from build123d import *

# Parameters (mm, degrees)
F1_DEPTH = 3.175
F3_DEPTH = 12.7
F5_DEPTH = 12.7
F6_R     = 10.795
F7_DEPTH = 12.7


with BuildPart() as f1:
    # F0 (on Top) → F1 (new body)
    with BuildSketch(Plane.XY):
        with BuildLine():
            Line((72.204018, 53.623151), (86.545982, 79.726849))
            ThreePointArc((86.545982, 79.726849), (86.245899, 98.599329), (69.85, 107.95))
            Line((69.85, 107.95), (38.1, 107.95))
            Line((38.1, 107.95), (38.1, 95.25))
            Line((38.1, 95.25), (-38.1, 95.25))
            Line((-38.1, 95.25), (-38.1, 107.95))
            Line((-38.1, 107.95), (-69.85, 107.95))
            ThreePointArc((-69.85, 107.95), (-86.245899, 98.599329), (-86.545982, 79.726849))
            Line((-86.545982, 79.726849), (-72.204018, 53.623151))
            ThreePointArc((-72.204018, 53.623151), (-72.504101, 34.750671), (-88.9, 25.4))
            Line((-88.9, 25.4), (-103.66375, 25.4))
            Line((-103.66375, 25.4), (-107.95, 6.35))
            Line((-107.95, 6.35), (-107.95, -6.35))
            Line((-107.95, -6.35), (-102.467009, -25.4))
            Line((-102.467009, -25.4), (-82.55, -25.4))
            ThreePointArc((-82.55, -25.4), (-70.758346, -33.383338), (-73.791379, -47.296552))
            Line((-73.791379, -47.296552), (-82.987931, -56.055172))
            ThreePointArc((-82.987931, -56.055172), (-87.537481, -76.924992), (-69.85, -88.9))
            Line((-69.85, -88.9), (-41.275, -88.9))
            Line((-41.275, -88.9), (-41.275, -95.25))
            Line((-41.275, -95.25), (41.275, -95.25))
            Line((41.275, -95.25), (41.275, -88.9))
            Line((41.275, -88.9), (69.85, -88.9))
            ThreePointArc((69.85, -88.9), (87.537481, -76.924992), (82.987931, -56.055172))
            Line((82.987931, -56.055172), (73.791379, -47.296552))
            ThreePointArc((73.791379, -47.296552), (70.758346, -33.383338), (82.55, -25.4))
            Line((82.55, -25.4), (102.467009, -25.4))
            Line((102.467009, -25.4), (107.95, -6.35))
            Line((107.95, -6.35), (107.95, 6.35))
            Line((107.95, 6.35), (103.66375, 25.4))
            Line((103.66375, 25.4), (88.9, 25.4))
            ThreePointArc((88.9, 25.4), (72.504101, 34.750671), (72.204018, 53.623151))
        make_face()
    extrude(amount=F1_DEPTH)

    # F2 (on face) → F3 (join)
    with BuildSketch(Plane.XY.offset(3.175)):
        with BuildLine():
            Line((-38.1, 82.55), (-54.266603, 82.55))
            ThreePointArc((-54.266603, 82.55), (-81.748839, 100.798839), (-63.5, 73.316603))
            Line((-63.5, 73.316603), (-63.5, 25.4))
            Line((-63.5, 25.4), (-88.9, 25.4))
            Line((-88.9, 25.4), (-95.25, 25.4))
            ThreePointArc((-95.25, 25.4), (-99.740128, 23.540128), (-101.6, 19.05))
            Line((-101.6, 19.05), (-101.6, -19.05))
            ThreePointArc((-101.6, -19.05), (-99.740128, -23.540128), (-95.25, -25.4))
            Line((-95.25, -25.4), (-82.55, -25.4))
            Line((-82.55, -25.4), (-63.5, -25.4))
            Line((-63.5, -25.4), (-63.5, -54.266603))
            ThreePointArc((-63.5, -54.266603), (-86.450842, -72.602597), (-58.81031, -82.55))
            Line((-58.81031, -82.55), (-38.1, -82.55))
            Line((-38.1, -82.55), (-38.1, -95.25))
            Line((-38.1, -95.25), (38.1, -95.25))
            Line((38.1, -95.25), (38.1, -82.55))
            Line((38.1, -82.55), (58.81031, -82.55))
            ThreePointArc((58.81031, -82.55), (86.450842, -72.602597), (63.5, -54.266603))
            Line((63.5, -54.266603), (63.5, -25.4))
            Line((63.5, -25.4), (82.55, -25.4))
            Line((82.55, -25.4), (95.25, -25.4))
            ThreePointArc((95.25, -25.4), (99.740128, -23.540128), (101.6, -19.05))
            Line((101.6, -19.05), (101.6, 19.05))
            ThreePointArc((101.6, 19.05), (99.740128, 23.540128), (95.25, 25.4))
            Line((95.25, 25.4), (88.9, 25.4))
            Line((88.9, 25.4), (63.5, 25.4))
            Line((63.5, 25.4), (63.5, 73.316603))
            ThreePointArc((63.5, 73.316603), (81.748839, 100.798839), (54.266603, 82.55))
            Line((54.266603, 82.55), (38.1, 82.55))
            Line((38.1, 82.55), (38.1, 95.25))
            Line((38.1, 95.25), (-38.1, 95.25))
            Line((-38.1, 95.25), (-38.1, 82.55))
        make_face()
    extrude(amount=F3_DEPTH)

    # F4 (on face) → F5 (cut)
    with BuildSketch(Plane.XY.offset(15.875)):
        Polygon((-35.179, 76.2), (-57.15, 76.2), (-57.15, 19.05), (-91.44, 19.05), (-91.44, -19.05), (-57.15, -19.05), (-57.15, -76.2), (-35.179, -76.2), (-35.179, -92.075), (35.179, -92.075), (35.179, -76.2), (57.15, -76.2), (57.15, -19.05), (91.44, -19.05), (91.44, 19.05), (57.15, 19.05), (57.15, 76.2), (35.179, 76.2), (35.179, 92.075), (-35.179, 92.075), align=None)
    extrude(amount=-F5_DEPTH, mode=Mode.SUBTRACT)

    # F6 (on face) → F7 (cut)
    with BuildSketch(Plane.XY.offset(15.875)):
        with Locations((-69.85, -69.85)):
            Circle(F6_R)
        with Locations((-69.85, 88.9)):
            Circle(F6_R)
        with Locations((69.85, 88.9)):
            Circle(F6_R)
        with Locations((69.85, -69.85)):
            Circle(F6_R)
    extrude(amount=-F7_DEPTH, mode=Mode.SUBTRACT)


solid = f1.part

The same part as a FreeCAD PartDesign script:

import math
import FreeCAD as App
import Part
import Sketcher
Q = App.Units.Quantity


def add_polygon(sketch, points):
    """Adds a closed chain of lines whose ends are joined by coincident constraints."""
    first, n = sketch.GeometryCount, len(points)
    for a, b in zip(points, points[1:] + points[:1]):
        sketch.addGeometry(Part.LineSegment(App.Vector(*a, 0), App.Vector(*b, 0)), False)
    for i in range(n):
        sketch.addConstraint(Sketcher.Constraint("Coincident", first + i, 2, first + (i + 1) % n, 1))

doc = App.newDocument("Part")
body = doc.addObject("PartDesign::Body", "Body")

sketch1 = body.newObject("Sketcher::SketchObject", "Sketch")
sketch1.AttachmentSupport = (doc.getObject("XY_Plane"), [""])
sketch1.MapMode = "FlatFace"
sketch1.addGeometry([
    Part.LineSegment(App.Vector(72, 54, 0), App.Vector(87, 80, 0)),
    Part.ArcOfCircle(Part.Circle(App.Vector(70, 89, 0), App.Vector(0, 0, 1), 19), math.radians(-29), math.radians(90)),
    Part.LineSegment(App.Vector(70, 108, 0), App.Vector(38, 108, 0)),
    Part.LineSegment(App.Vector(38, 108, 0), App.Vector(38, 95, 0)),
    Part.LineSegment(App.Vector(38, 95, 0), App.Vector(-38, 95, 0)),
    Part.LineSegment(App.Vector(-38, 95, 0), App.Vector(-38, 108, 0)),
    Part.LineSegment(App.Vector(-38, 108, 0), App.Vector(-70, 108, 0)),
    Part.ArcOfCircle(Part.Circle(App.Vector(-70, 89, 0), App.Vector(0, 0, 1), 19), math.radians(90), math.radians(209)),
    Part.LineSegment(App.Vector(-87, 80, 0), App.Vector(-72, 54, 0)),
    Part.ArcOfCircle(Part.Circle(App.Vector(-89, 44, 0), App.Vector(0, 0, 1), 19), math.radians(-90), math.radians(29)),
    Part.LineSegment(App.Vector(-89, 25, 0), App.Vector(-104, 25, 0)),
    Part.LineSegment(App.Vector(-104, 25, 0), App.Vector(-108, 6, 0)),
    Part.LineSegment(App.Vector(-108, 6, 0), App.Vector(-108, -6, 0)),
    Part.LineSegment(App.Vector(-108, -6, 0), App.Vector(-102, -25, 0)),
    Part.LineSegment(App.Vector(-102, -25, 0), App.Vector(-83, -25, 0)),
    Part.ArcOfCircle(Part.Circle(App.Vector(-83, -38, 0), App.Vector(0, 0, 1), 13), math.radians(-46), math.radians(90)),
    Part.LineSegment(App.Vector(-74, -47, 0), App.Vector(-83, -56, 0)),
    Part.ArcOfCircle(Part.Circle(App.Vector(-70, -70, 0), App.Vector(0, 0, 1), 19), math.radians(134), math.radians(270)),
    Part.LineSegment(App.Vector(-70, -89, 0), App.Vector(-41, -89, 0)),
    Part.LineSegment(App.Vector(-41, -89, 0), App.Vector(-41, -95, 0)),
    Part.LineSegment(App.Vector(-41, -95, 0), App.Vector(41, -95, 0)),
    Part.LineSegment(App.Vector(41, -95, 0), App.Vector(41, -89, 0)),
    Part.LineSegment(App.Vector(41, -89, 0), App.Vector(70, -89, 0)),
    Part.ArcOfCircle(Part.Circle(App.Vector(70, -70, 0), App.Vector(0, 0, 1), 19), math.radians(-90), math.radians(46)),
    Part.LineSegment(App.Vector(83, -56, 0), App.Vector(74, -47, 0)),
    Part.ArcOfCircle(Part.Circle(App.Vector(83, -38, 0), App.Vector(0, 0, 1), 13), math.radians(90), math.radians(226)),
    Part.LineSegment(App.Vector(83, -25, 0), App.Vector(102, -25, 0)),
    Part.LineSegment(App.Vector(102, -25, 0), App.Vector(108, -6, 0)),
    Part.LineSegment(App.Vector(108, -6, 0), App.Vector(108, 6, 0)),
    Part.LineSegment(App.Vector(108, 6, 0), App.Vector(104, 25, 0)),
    Part.LineSegment(App.Vector(104, 25, 0), App.Vector(89, 25, 0)),
    Part.ArcOfCircle(Part.Circle(App.Vector(89, 44, 0), App.Vector(0, 0, 1), 19), math.radians(151), math.radians(270)),
], False)
sketch1.addConstraint([
    Sketcher.Constraint("Tangent", 0, 2, 1, 1),
    Sketcher.Constraint("Tangent", 1, 2, 2, 1),
    Sketcher.Constraint("Coincident", 2, 2, 3, 1),
    Sketcher.Constraint("Coincident", 3, 2, 4, 1),
    Sketcher.Constraint("Coincident", 4, 2, 5, 1),
    Sketcher.Constraint("Coincident", 5, 2, 6, 1),
    Sketcher.Constraint("Tangent", 6, 2, 7, 1),
    Sketcher.Constraint("Tangent", 7, 2, 8, 1),
    Sketcher.Constraint("Tangent", 8, 2, 9, 2),
    Sketcher.Constraint("Tangent", 9, 1, 10, 1),
    Sketcher.Constraint("Coincident", 10, 2, 11, 1),
    Sketcher.Constraint("Coincident", 11, 2, 12, 1),
    Sketcher.Constraint("Coincident", 12, 2, 13, 1),
    Sketcher.Constraint("Coincident", 13, 2, 14, 1),
    Sketcher.Constraint("Tangent", 14, 2, 15, 2),
    Sketcher.Constraint("Tangent", 15, 1, 16, 1),
    Sketcher.Constraint("Tangent", 16, 2, 17, 1),
    Sketcher.Constraint("Tangent", 17, 2, 18, 1),
    Sketcher.Constraint("Coincident", 18, 2, 19, 1),
    Sketcher.Constraint("Coincident", 19, 2, 20, 1),
    Sketcher.Constraint("Coincident", 20, 2, 21, 1),
    Sketcher.Constraint("Coincident", 21, 2, 22, 1),
    Sketcher.Constraint("Tangent", 22, 2, 23, 1),
    Sketcher.Constraint("Tangent", 23, 2, 24, 1),
    Sketcher.Constraint("Tangent", 24, 2, 25, 2),
    Sketcher.Constraint("Tangent", 25, 1, 26, 1),
    Sketcher.Constraint("Coincident", 26, 2, 27, 1),
    Sketcher.Constraint("Coincident", 27, 2, 28, 1),
    Sketcher.Constraint("Coincident", 28, 2, 29, 1),
    Sketcher.Constraint("Coincident", 29, 2, 30, 1),
    Sketcher.Constraint("Tangent", 30, 2, 31, 2),
    Sketcher.Constraint("Tangent", 31, 1, 0, 1),
    Sketcher.Constraint("Horizontal", 2),
    Sketcher.Constraint("Vertical", 3),
    Sketcher.Constraint("Horizontal", 4),
    Sketcher.Constraint("Vertical", 5),
    Sketcher.Constraint("Horizontal", 6),
    Sketcher.Constraint("Horizontal", 10),
    Sketcher.Constraint("Vertical", 12),
    Sketcher.Constraint("Horizontal", 14),
    Sketcher.Constraint("Horizontal", 18),
    Sketcher.Constraint("Vertical", 19),
    Sketcher.Constraint("Horizontal", 20),
    Sketcher.Constraint("Vertical", 21),
    Sketcher.Constraint("Horizontal", 22),
    Sketcher.Constraint("Horizontal", 26),
    Sketcher.Constraint("Vertical", 28),
    Sketcher.Constraint("Horizontal", 30),
    Sketcher.Constraint("Equal", 1, 7),
    Sketcher.Constraint("Equal", 7, 9),
    Sketcher.Constraint("Equal", 9, 17),
    Sketcher.Constraint("Equal", 17, 23),
    Sketcher.Constraint("Equal", 15, 25),
    Sketcher.Constraint("Equal", 23, 31),
    Sketcher.Constraint("Symmetric", 11, 2, 27, 2, -1, 1),
    Sketcher.Constraint("Symmetric", 1, 3, 7, 3, -2),
    Sketcher.Constraint("Symmetric", 17, 3, 23, 3, -2),
    Sketcher.Constraint("Symmetric", 15, 3, 25, 3, -2),
    Sketcher.Constraint("Symmetric", 9, 3, 31, 3, -2),
    Sketcher.Constraint("Horizontal", 12, 2, 27, 2),
    Sketcher.Constraint("Horizontal", 11, 2, 28, 2),
    Sketcher.Constraint("Vertical", 7, 3, 17, 3),
    Sketcher.Constraint("Equal", 2, 6),
    Sketcher.Constraint("Equal", 18, 22),
    Sketcher.Constraint("Equal", 14, 26),
    Sketcher.Constraint("Equal", 10, 30),
    Sketcher.Constraint("Equal", 5, 12),
    Sketcher.Constraint("Radius", 15, Q("0.5 in")),
    Sketcher.Constraint("DistanceX", 4, 2, 4, 1, Q("3 in")),
    Sketcher.Constraint("Radius", 1, Q("0.75 in")),
    Sketcher.Constraint("DistanceY", 3, 2, 3, 1, Q("0.5 in")),
    Sketcher.Constraint("DistanceY", -1, 1, 9, 1, Q("1 in")),
    Sketcher.Constraint("DistanceY", 13, 2, -1, 1, Q("1 in")),
    Sketcher.Constraint("DistanceY", 15, 3, 7, 3, Q("5 in")),
    Sketcher.Constraint("DistanceX", 15, 3, 1, 3, Q("6 in")),
    Sketcher.Constraint("DistanceX", 9, 3, 31, 3, Q("7.0000001 in")),
    Sketcher.Constraint("DistanceX", 11, 2, 15, 3, Q("1 in")),
    Sketcher.Constraint("DistanceY", 17, 2, 15, 3, Q("2 in")),
    Sketcher.Constraint("DistanceY", 19, 2, 17, 3, Q("1 in")),
    Sketcher.Constraint("Distance", 16, Q("0.5 in")),
    Sketcher.Constraint("DistanceX", 20, 1, 20, 2, Q("3.25 in")),
    Sketcher.Constraint("DistanceX", 10, 2, 10, 1, Q("14.76375 mm")),
    Sketcher.Constraint("DistanceX", 14, 1, 14, 2, Q("19.917009 mm")),
])
pad1 = body.newObject("PartDesign::Pad", "Pad")
pad1.Profile = sketch1
pad1.Length = Q("0.125 in")

sketch2 = body.newObject("Sketcher::SketchObject", "Sketch001")
sketch2.AttachmentSupport = (doc.getObject("XY_Plane"), [""])
sketch2.MapMode = "FlatFace"
sketch2.AttachmentOffset = App.Placement(App.Vector(0, 0, 0.125 * 25.4), App.Rotation())
sketch2.addGeometry([
    Part.LineSegment(App.Vector(-38, 83, 0), App.Vector(-54, 83, 0)),
    Part.ArcOfCircle(Part.Circle(App.Vector(-70, 89, 0), App.Vector(0, 0, 1), 17), math.radians(-22), math.radians(292)),
    Part.LineSegment(App.Vector(-64, 73, 0), App.Vector(-64, 25, 0)),
    Part.LineSegment(App.Vector(-64, 25, 0), App.Vector(-95, 25, 0)),
    Part.ArcOfCircle(Part.Circle(App.Vector(-95, 19, 0), App.Vector(0, 0, 1), 6), math.radians(90), math.radians(180)),
    Part.LineSegment(App.Vector(-102, 19, 0), App.Vector(-102, -19, 0)),
    Part.ArcOfCircle(Part.Circle(App.Vector(-95, -19, 0), App.Vector(0, 0, 1), 6), math.radians(-180), math.radians(-90)),
    Part.LineSegment(App.Vector(-95, -25, 0), App.Vector(-64, -25, 0)),
    Part.LineSegment(App.Vector(-64, -25, 0), App.Vector(-64, -54, 0)),
    Part.ArcOfCircle(Part.Circle(App.Vector(-70, -70, 0), App.Vector(0, 0, 1), 17), math.radians(68), math.radians(311)),
    Part.LineSegment(App.Vector(-59, -83, 0), App.Vector(-38, -83, 0)),
    Part.LineSegment(App.Vector(-38, -83, 0), App.Vector(-38, -95, 0)),
    Part.LineSegment(App.Vector(-38, -95, 0), App.Vector(38, -95, 0)),
    Part.LineSegment(App.Vector(38, -95, 0), App.Vector(38, -83, 0)),
    Part.LineSegment(App.Vector(38, -83, 0), App.Vector(59, -83, 0)),
    Part.ArcOfCircle(Part.Circle(App.Vector(70, -70, 0), App.Vector(0, 0, 1), 17), math.radians(-131), math.radians(112)),
    Part.LineSegment(App.Vector(64, -54, 0), App.Vector(64, -25, 0)),
    Part.LineSegment(App.Vector(64, -25, 0), App.Vector(95, -25, 0)),
    Part.ArcOfCircle(Part.Circle(App.Vector(95, -19, 0), App.Vector(0, 0, 1), 6), math.radians(-90), math.radians(0)),
    Part.LineSegment(App.Vector(102, -19, 0), App.Vector(102, 19, 0)),
    Part.ArcOfCircle(Part.Circle(App.Vector(95, 19, 0), App.Vector(0, 0, 1), 6), math.radians(0), math.radians(90)),
    Part.LineSegment(App.Vector(95, 25, 0), App.Vector(64, 25, 0)),
    Part.LineSegment(App.Vector(64, 25, 0), App.Vector(64, 73, 0)),
    Part.ArcOfCircle(Part.Circle(App.Vector(70, 89, 0), App.Vector(0, 0, 1), 17), math.radians(-112), math.radians(202)),
    Part.LineSegment(App.Vector(54, 83, 0), App.Vector(38, 83, 0)),
    Part.LineSegment(App.Vector(38, 83, 0), App.Vector(38, 95, 0)),
    Part.LineSegment(App.Vector(38, 95, 0), App.Vector(-38, 95, 0)),
    Part.LineSegment(App.Vector(-38, 95, 0), App.Vector(-38, 83, 0)),
], False)
sketch2.addConstraint([
    Sketcher.Constraint("Coincident", 0, 2, 1, 1),
    Sketcher.Constraint("Coincident", 1, 2, 2, 1),
    Sketcher.Constraint("Coincident", 2, 2, 3, 1),
    Sketcher.Constraint("Tangent", 3, 2, 4, 1),
    Sketcher.Constraint("Tangent", 4, 2, 5, 1),
    Sketcher.Constraint("Tangent", 5, 2, 6, 1),
    Sketcher.Constraint("Tangent", 6, 2, 7, 1),
    Sketcher.Constraint("Coincident", 7, 2, 8, 1),
    Sketcher.Constraint("Coincident", 8, 2, 9, 1),
    Sketcher.Constraint("Coincident", 9, 2, 10, 1),
    Sketcher.Constraint("Coincident", 10, 2, 11, 1),
    Sketcher.Constraint("Coincident", 11, 2, 12, 1),
    Sketcher.Constraint("Coincident", 12, 2, 13, 1),
    Sketcher.Constraint("Coincident", 13, 2, 14, 1),
    Sketcher.Constraint("Coincident", 14, 2, 15, 1),
    Sketcher.Constraint("Coincident", 15, 2, 16, 1),
    Sketcher.Constraint("Coincident", 16, 2, 17, 1),
    Sketcher.Constraint("Tangent", 17, 2, 18, 1),
    Sketcher.Constraint("Tangent", 18, 2, 19, 1),
    Sketcher.Constraint("Tangent", 19, 2, 20, 1),
    Sketcher.Constraint("Tangent", 20, 2, 21, 1),
    Sketcher.Constraint("Coincident", 21, 2, 22, 1),
    Sketcher.Constraint("Coincident", 22, 2, 23, 1),
    Sketcher.Constraint("Coincident", 23, 2, 24, 1),
    Sketcher.Constraint("Coincident", 24, 2, 25, 1),
    Sketcher.Constraint("Coincident", 25, 2, 26, 1),
    Sketcher.Constraint("Coincident", 26, 2, 27, 1),
    Sketcher.Constraint("Coincident", 27, 2, 0, 1),
    Sketcher.Constraint("Horizontal", 0),
    Sketcher.Constraint("Vertical", 2),
    Sketcher.Constraint("Horizontal", 3),
    Sketcher.Constraint("Vertical", 5),
    Sketcher.Constraint("Horizontal", 7),
    Sketcher.Constraint("Vertical", 8),
    Sketcher.Constraint("Horizontal", 10),
    Sketcher.Constraint("Vertical", 11),
    Sketcher.Constraint("Horizontal", 12),
    Sketcher.Constraint("Vertical", 13),
    Sketcher.Constraint("Horizontal", 14),
    Sketcher.Constraint("Vertical", 16),
    Sketcher.Constraint("Horizontal", 17),
    Sketcher.Constraint("Vertical", 19),
    Sketcher.Constraint("Horizontal", 21),
    Sketcher.Constraint("Vertical", 22),
    Sketcher.Constraint("Horizontal", 24),
    Sketcher.Constraint("Vertical", 25),
    Sketcher.Constraint("Horizontal", 26),
    Sketcher.Constraint("Vertical", 27),
    Sketcher.Constraint("Equal", 4, 6),
    Sketcher.Constraint("Equal", 1, 9),
    Sketcher.Constraint("Equal", 9, 15),
    Sketcher.Constraint("Equal", 6, 18),
    Sketcher.Constraint("Equal", 18, 20),
    Sketcher.Constraint("Equal", 15, 23),
    Sketcher.Constraint("Symmetric", 4, 3, 18, 3, -1, 1),
    Sketcher.Constraint("Symmetric", 7, 2, 21, 2, -1, 1),
    Sketcher.Constraint("Symmetric", 10, 2, 24, 2, -1, 1),
    Sketcher.Constraint("Symmetric", 12, 2, 26, 2, -1, 1),
    Sketcher.Constraint("Symmetric", 9, 3, 15, 3, -2),
    Sketcher.Constraint("Symmetric", 1, 3, 23, 3, -2),
    Sketcher.Constraint("Symmetric", 10, 2, 13, 2, -2),
    Sketcher.Constraint("Symmetric", 7, 2, 16, 2, -2),
    Sketcher.Constraint("Horizontal", 1, 2, 22, 2),
    Sketcher.Constraint("Horizontal", 0, 2, 23, 2),
    Sketcher.Constraint("Vertical", 1, 3, 9, 3),
    Sketcher.Constraint("DistanceX", 12, 1, 12, 2, Q("3 in")),
    Sketcher.Constraint("Radius", 4, Q("0.25 in")),
    Sketcher.Constraint("DistanceY", 5, 2, 5, 1, Q("1.5 in")),
    Sketcher.Constraint("DistanceY", 11, 2, 11, 1, Q("0.5 in")),
    Sketcher.Constraint("DistanceX", 4, 2, -1, 1, Q("4 in")),
    Sketcher.Constraint("DistanceX", 4, 3, 1, 3, Q("1 in")),
    Sketcher.Constraint("DistanceY", 9, 3, 6, 3, Q("2 in")),
    Sketcher.Constraint("DistanceY", 6, 3, 0, 2, Q("4 in")),
    Sketcher.Constraint("DistanceX", 8, 2, 10, 2, Q("1 in")),
    Sketcher.Constraint("DistanceY", -1, 1, 1, 3, Q("3.5 in")),
    Sketcher.Constraint("Radius", 1, Q("0.6625 in")),
])
pad2 = body.newObject("PartDesign::Pad", "Pad001")
pad2.Profile = sketch2
pad2.Length = Q("0.5 in")

sketch3 = body.newObject("Sketcher::SketchObject", "Sketch002")
sketch3.AttachmentSupport = (doc.getObject("XY_Plane"), [""])
sketch3.MapMode = "FlatFace"
sketch3.AttachmentOffset = App.Placement(App.Vector(0, 0, 0.625 * 25.4), App.Rotation())
add_polygon(sketch3, [(-35, 76), (-57, 76), (-57, 19), (-91, 19), (-91, -19), (-57, -19), (-57, -76), (-35, -76), (-35, -92), (35, -92), (35, -76), (57, -76), (57, -19), (91, -19), (91, 19), (57, 19), (57, 76), (35, 76), (35, 92), (-35, 92)])
sketch3.addConstraint([
    Sketcher.Constraint("Horizontal", 0),
    Sketcher.Constraint("Vertical", 1),
    Sketcher.Constraint("Horizontal", 2),
    Sketcher.Constraint("Vertical", 3),
    Sketcher.Constraint("Horizontal", 4),
    Sketcher.Constraint("Vertical", 5),
    Sketcher.Constraint("Horizontal", 6),
    Sketcher.Constraint("Vertical", 7),
    Sketcher.Constraint("Horizontal", 8),
    Sketcher.Constraint("Vertical", 9),
    Sketcher.Constraint("Horizontal", 10),
    Sketcher.Constraint("Vertical", 11),
    Sketcher.Constraint("Horizontal", 12),
    Sketcher.Constraint("Vertical", 13),
    Sketcher.Constraint("Horizontal", 14),
    Sketcher.Constraint("Vertical", 15),
    Sketcher.Constraint("Horizontal", 16),
    Sketcher.Constraint("Vertical", 17),
    Sketcher.Constraint("Horizontal", 18),
    Sketcher.Constraint("Vertical", 19),
    Sketcher.Constraint("Symmetric", 0, 2, 10, 2, -1, 1),
    Sketcher.Constraint("Symmetric", 2, 2, 12, 2, -1, 1),
    Sketcher.Constraint("Symmetric", 4, 2, 14, 2, -1, 1),
    Sketcher.Constraint("Symmetric", 6, 2, 16, 2, -1, 1),
    Sketcher.Constraint("Symmetric", 8, 2, 18, 2, -1, 1),
    Sketcher.Constraint("Symmetric", 6, 2, 9, 2, -2),
    Sketcher.Constraint("Symmetric", 4, 2, 11, 2, -2),
    Sketcher.Constraint("DistanceY", 3, 2, 3, 1, Q("1.5 in")),
    Sketcher.Constraint("DistanceY", -1, 1, 0, 2, Q("3 in")),
    Sketcher.Constraint("DistanceX", 2, 2, 2, 1, Q("1.35 in")),
    Sketcher.Constraint("DistanceX", 8, 1, 8, 2, Q("2.77 in")),
    Sketcher.Constraint("DistanceX", 2, 2, -1, 1, Q("3.6 in")),
    Sketcher.Constraint("DistanceY", 7, 2, 7, 1, Q("0.625 in")),
])
pocket1 = body.newObject("PartDesign::Pocket", "Pocket")
pocket1.Profile = sketch3
pocket1.Length = Q("0.5 in")

sketch4 = body.newObject("Sketcher::SketchObject", "Sketch003")
sketch4.AttachmentSupport = (doc.getObject("XY_Plane"), [""])
sketch4.MapMode = "FlatFace"
sketch4.AttachmentOffset = App.Placement(App.Vector(0, 0, 0.625 * 25.4), App.Rotation())
sketch4.addGeometry([
    Part.Circle(App.Vector(-70, -70, 0), App.Vector(0, 0, 1), 11),
    Part.Circle(App.Vector(-70, 89, 0), App.Vector(0, 0, 1), 11),
    Part.Circle(App.Vector(70, 89, 0), App.Vector(0, 0, 1), 11),
    Part.Circle(App.Vector(70, -70, 0), App.Vector(0, 0, 1), 11),
], False)
sketch4.addConstraint([
    Sketcher.Constraint("Equal", 0, 1),
    Sketcher.Constraint("Equal", 1, 2),
    Sketcher.Constraint("Equal", 2, 3),
    Sketcher.Constraint("Symmetric", 1, 3, 2, 3, -2),
    Sketcher.Constraint("Symmetric", 0, 3, 3, 3, -2),
    Sketcher.Constraint("Vertical", 0, 3, 1, 3),
    Sketcher.Constraint("Diameter", 0, Q("0.85 in")),
    Sketcher.Constraint("DistanceY", -1, 1, 1, 3, Q("3.5 in")),
    Sketcher.Constraint("DistanceX", 1, 3, 2, 3, Q("5.5 in")),
    Sketcher.Constraint("DistanceY", 0, 3, -1, 1, Q("2.75 in")),
])
pocket2 = body.newObject("PartDesign::Pocket", "Pocket001")
pocket2.Profile = sketch4
pocket2.Length = Q("0.5 in")

doc.recompute()
